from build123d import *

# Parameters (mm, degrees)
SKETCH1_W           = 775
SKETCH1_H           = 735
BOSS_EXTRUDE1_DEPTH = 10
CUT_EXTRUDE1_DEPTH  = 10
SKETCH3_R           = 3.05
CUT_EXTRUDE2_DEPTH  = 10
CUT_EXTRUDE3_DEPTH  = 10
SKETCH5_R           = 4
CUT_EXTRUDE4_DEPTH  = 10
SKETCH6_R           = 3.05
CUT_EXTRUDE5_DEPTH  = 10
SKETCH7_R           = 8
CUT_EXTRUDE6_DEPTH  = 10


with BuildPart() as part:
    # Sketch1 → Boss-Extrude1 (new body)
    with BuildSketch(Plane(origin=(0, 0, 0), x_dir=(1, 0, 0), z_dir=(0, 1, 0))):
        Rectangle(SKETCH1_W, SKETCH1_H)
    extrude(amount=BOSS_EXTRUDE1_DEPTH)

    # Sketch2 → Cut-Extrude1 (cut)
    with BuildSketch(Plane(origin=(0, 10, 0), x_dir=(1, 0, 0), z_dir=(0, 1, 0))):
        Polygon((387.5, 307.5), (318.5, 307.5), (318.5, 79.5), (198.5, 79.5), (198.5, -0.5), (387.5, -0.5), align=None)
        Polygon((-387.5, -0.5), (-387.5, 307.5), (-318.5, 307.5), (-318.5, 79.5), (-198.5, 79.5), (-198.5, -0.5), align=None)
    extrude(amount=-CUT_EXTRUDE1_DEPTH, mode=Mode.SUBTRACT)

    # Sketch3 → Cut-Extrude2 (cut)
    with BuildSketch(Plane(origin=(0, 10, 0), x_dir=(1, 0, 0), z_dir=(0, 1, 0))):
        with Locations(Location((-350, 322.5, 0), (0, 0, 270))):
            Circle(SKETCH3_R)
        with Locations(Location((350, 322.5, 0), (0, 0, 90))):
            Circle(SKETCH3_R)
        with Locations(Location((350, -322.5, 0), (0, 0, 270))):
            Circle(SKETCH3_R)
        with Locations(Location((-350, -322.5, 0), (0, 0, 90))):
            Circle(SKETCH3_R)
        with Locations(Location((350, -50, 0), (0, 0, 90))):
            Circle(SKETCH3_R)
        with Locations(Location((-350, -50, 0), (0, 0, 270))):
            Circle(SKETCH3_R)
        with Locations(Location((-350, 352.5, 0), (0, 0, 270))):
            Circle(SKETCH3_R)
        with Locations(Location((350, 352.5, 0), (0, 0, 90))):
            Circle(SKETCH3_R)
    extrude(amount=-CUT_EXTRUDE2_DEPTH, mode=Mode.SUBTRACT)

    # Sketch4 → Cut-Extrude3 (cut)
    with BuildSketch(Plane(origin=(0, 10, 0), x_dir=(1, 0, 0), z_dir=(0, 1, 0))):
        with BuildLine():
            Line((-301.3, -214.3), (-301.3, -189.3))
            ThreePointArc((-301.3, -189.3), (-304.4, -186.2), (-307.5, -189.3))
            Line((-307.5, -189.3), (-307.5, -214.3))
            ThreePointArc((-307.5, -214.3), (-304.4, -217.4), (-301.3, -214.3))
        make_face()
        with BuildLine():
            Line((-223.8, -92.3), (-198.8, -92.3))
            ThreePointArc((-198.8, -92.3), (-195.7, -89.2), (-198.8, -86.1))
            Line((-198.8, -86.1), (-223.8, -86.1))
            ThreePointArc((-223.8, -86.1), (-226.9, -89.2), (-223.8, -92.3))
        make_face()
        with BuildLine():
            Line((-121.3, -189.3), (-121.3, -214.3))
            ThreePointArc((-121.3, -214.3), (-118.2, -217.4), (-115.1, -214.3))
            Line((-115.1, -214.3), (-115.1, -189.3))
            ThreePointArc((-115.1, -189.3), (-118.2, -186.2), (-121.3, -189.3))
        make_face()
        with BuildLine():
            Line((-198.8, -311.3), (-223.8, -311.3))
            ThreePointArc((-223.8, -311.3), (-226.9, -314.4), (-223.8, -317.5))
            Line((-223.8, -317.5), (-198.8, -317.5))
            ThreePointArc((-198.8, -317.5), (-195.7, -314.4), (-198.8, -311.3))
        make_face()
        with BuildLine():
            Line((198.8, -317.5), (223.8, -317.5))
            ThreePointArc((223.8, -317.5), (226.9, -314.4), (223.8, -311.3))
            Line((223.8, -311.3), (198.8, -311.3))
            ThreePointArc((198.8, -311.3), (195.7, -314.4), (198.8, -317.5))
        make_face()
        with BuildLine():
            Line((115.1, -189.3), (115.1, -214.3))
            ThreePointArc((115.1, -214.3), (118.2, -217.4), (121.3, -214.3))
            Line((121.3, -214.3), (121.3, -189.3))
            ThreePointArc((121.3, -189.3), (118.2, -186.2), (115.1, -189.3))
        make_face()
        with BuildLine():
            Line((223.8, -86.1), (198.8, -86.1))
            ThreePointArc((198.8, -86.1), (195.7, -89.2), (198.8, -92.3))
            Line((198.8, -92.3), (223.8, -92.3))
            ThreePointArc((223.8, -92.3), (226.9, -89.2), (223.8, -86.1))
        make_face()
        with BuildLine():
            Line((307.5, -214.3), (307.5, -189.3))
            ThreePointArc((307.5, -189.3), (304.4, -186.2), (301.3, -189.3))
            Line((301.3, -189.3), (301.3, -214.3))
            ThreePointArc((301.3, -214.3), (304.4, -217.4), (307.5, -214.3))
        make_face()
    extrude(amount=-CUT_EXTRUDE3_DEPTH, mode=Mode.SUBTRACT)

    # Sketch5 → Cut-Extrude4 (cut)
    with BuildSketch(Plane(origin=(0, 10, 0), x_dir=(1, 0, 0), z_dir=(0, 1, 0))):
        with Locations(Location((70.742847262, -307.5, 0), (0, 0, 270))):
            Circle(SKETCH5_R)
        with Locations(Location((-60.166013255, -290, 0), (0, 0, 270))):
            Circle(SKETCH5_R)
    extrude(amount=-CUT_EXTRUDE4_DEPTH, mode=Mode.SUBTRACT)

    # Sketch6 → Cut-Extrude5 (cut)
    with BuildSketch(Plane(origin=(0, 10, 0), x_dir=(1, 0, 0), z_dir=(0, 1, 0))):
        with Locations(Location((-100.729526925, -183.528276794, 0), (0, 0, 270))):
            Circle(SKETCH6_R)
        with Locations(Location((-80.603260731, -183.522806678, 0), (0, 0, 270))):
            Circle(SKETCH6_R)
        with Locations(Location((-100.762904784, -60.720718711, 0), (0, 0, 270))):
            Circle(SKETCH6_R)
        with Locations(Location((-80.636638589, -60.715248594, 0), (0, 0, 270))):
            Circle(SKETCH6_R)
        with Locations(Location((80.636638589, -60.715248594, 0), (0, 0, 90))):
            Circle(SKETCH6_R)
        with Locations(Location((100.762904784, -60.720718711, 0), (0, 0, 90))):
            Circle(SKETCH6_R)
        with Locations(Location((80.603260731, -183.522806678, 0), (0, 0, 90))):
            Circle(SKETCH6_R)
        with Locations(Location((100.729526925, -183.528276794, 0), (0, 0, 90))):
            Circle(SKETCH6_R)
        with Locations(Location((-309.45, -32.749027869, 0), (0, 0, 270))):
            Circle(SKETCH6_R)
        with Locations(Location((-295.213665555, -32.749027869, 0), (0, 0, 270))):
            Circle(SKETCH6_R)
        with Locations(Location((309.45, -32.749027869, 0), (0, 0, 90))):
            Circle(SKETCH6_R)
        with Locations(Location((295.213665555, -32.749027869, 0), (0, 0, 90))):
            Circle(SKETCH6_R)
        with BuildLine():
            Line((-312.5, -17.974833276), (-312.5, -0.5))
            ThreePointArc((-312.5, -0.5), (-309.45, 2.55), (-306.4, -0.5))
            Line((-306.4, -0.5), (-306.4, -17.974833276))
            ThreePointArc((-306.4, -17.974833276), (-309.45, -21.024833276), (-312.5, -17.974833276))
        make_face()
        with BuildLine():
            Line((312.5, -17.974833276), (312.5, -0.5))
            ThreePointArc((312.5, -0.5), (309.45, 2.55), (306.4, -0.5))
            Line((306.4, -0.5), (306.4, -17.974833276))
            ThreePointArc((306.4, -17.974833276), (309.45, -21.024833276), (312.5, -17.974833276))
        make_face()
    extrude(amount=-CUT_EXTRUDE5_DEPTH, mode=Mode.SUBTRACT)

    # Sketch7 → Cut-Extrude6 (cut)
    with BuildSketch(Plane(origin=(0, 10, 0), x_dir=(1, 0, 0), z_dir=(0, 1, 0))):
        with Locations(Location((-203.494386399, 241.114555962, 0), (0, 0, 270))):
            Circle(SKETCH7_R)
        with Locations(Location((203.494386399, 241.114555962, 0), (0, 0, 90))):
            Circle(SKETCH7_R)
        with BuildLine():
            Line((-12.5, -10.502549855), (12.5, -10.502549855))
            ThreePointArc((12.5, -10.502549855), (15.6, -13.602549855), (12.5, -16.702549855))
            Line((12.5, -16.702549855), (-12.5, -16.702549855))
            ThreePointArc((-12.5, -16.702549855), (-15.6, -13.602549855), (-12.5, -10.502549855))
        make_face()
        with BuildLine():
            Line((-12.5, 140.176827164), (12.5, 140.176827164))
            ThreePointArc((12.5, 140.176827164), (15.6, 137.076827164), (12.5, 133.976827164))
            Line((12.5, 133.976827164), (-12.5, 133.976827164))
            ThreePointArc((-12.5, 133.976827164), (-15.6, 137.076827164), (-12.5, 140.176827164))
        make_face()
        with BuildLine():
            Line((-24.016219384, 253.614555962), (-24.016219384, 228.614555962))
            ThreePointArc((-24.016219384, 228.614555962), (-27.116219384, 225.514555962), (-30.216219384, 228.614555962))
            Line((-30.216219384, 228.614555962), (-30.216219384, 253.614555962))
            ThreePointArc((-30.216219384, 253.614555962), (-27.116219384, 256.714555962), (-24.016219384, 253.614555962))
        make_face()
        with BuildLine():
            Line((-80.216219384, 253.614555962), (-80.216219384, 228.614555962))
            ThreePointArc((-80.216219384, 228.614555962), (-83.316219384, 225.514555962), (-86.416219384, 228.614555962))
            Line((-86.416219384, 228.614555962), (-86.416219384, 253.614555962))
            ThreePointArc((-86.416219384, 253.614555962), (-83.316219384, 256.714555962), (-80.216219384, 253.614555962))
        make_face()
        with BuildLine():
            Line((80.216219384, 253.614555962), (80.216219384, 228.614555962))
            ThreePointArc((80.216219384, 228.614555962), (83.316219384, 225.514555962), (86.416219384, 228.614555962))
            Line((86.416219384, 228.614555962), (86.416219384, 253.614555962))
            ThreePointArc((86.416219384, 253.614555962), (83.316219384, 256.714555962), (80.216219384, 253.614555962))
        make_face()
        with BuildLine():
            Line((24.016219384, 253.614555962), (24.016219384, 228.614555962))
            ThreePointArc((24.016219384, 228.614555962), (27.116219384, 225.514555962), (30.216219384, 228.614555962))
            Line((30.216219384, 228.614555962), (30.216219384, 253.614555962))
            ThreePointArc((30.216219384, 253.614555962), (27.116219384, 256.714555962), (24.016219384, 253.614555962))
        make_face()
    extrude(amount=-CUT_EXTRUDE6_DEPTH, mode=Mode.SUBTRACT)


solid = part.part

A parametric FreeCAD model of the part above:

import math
import FreeCAD as App
import Part
import Sketcher
Q = App.Units.Quantity


def add_polygon(sketch, points):
    """Adds a closed chain of lines whose ends are joined by coincident constraints."""
    first, n = sketch.GeometryCount, len(points)
    for a, b in zip(points, points[1:] + points[:1]):
        sketch.addGeometry(Part.LineSegment(App.Vector(*a, 0), App.Vector(*b, 0)), False)
    for i in range(n):
        sketch.addConstraint(Sketcher.Constraint("Coincident", first + i, 2, first + (i + 1) % n, 1))

doc = App.newDocument("Part")
body = doc.addObject("PartDesign::Body", "Body")

# Sketch on XZ plane
sketch1 = body.newObject("Sketcher::SketchObject", "Sketch")
sketch1.AttachmentSupport = (doc.getObject("XZ_Plane"), [""])
sketch1.MapMode = "FlatFace"
add_polygon(sketch1, [(-388, -368), (-388, 368), (388, 368), (388, -368)])  # lines 0-3
sketch1.addConstraint(Sketcher.Constraint("Vertical", 0))
sketch1.addConstraint(Sketcher.Constraint("Horizontal", 1))
sketch1.addConstraint(Sketcher.Constraint("Vertical", 2))
sketch1.addConstraint(Sketcher.Constraint("Horizontal", 3))
sketch1.addConstraint(Sketcher.Constraint("Symmetric", 0, 2, 2, 2, -1, 1))
sketch1.addConstraint(Sketcher.Constraint("DistanceX", 1, 1, 1, 2, Q("775 mm")))
sketch1.addConstraint(Sketcher.Constraint("DistanceY", 0, 1, 0, 2, Q("735 mm")))
pad1 = body.newObject("PartDesign::Pad", "Pad")
pad1.Profile = sketch1
pad1.Length = 10
pad1.Reversed = True

# Sketch on XZ plane
sketch2 = body.newObject("Sketcher::SketchObject", "Sketch001")
sketch2.AttachmentSupport = (doc.getObject("XZ_Plane"), [""])
sketch2.MapMode = "FlatFace"
sketch2.AttachmentOffset = App.Placement(App.Vector(0, 0, -10), App.Rotation())
add_polygon(sketch2, [(388, -308), (318, -308), (318, -80), (198, -80), (198, 0), (388, 0)])  # lines 0-5
add_polygon(sketch2, [(-388, -308), (-388, 0), (-198, 0), (-198, -80), (-318, -80), (-318, -308)])  # lines 6-11
sketch2.addConstraint(Sketcher.Constraint("Horizontal", 0))
sketch2.addConstraint(Sketcher.Constraint("Vertical", 1))
sketch2.addConstraint(Sketcher.Constraint("Horizontal", 2))
sketch2.addConstraint(Sketcher.Constraint("Vertical", 3))
sketch2.addConstraint(Sketcher.Constraint("Horizontal", 4))
sketch2.addConstraint(Sketcher.Constraint("Vertical", 5))
sketch2.addConstraint(Sketcher.Constraint("Vertical", 6))
sketch2.addConstraint(Sketcher.Constraint("Horizontal", 7))
sketch2.addConstraint(Sketcher.Constraint("Vertical", 8))
sketch2.addConstraint(Sketcher.Constraint("Horizontal", 9))
sketch2.addConstraint(Sketcher.Constraint("Vertical", 10))
sketch2.addConstraint(Sketcher.Constraint("Horizontal", 11))
sketch2.addConstraint(Sketcher.Constraint("Symmetric", 4, 2, 6, 2, -2))
sketch2.addConstraint(Sketcher.Constraint("Symmetric", 2, 2, 8, 2, -2))
sketch2.addConstraint(Sketcher.Constraint("Symmetric", 0, 2, 10, 2, -2))
sketch2.addConstraint(Sketcher.Constraint("DistanceX", 0, 2, 0, 1, Q("69 mm")))
sketch2.addConstraint(Sketcher.Constraint("DistanceX", 2, 2, 2, 1, Q("120 mm")))
sketch2.addConstraint(Sketcher.Constraint("DistanceY", 1, 1, 1, 2, Q("228 mm")))
sketch2.addConstraint(Sketcher.Constraint("DistanceY", 3, 1, 3, 2, Q("80 mm")))
sketch2.addConstraint(Sketcher.Constraint("DistanceX", 6, 2, 3, 2, Q("586 mm")))
sketch2.addConstraint(Sketcher.Constraint("DistanceY", 0, 2, -1, 1, Q("307.5 mm")))
pocket1 = body.newObject("PartDesign::Pocket", "Pocket")
pocket1.Profile = sketch2
pocket1.Length = 10
pocket1.Reversed = True

# Sketch on XZ plane
sketch3 = body.newObject("Sketcher::SketchObject", "Sketch002")
sketch3.AttachmentSupport = (doc.getObject("XZ_Plane"), [""])
sketch3.MapMode = "FlatFace"
sketch3.AttachmentOffset = App.Placement(App.Vector(0, 0, -10), App.Rotation())
sketch3.addGeometry(Part.Circle(App.Vector(-350, -322.5, 0), App.Vector(0, 0, 1), 3), False)
sketch3.addGeometry(Part.Circle(App.Vector(350, -322.5, 0), App.Vector(0, 0, 1), 3), False)
sketch3.addGeometry(Part.Circle(App.Vector(350, 322.5, 0), App.Vector(0, 0, 1), 3), False)
sketch3.addGeometry(Part.Circle(App.Vector(-350, 322.5, 0), App.Vector(0, 0, 1), 3), False)
sketch3.addGeometry(Part.Circle(App.Vector(350, 50, 0), App.Vector(0, 0, 1), 3), False)
sketch3.addGeometry(Part.Circle(App.Vector(-350, 50, 0), App.Vector(0, 0, 1), 3), False)
sketch3.addGeometry(Part.Circle(App.Vector(-350, -352.5, 0), App.Vector(0, 0, 1), 3), False)
sketch3.addGeometry(Part.Circle(App.Vector(350, -352.5, 0), App.Vector(0, 0, 1), 3), False)
sketch3.addConstraint(Sketcher.Constraint("Equal", 0, 1))
sketch3.addConstraint(Sketcher.Constraint("Equal", 1, 2))
sketch3.addConstraint(Sketcher.Constraint("Equal", 2, 3))
sketch3.addConstraint(Sketcher.Constraint("Equal", 3, 4))
sketch3.addConstraint(Sketcher.Constraint("Equal", 4, 5))
sketch3.addConstraint(Sketcher.Constraint("Equal", 5, 6))
sketch3.addConstraint(Sketcher.Constraint("Equal", 6, 7))
sketch3.addConstraint(Sketcher.Constraint("Symmetric", 0, 3, 2, 3, -1, 1))
sketch3.addConstraint(Sketcher.Constraint("Symmetric", 1, 3, 3, 3, -1, 1))
sketch3.addConstraint(Sketcher.Constraint("Symmetric", 0, 3, 1, 3, -2))
sketch3.addConstraint(Sketcher.Constraint("Symmetric", 4, 3, 5, 3, -2))
sketch3.addConstraint(Sketcher.Constraint("Symmetric", 6, 3, 7, 3, -2))
sketch3.addConstraint(Sketcher.Constraint("Vertical", 2, 3, 4, 3))
sketch3.addConstraint(Sketcher.Constraint("Vertical", 5, 3, 6, 3))
sketch3.addConstraint(Sketcher.Constraint("Diameter", 0, Q("6.1 mm")))
sketch3.addConstraint(Sketcher.Constraint("DistanceX", 0, 3, -1, 1, Q("350 mm")))
sketch3.addConstraint(Sketcher.Constraint("DistanceY", -1, 1, 4, 3, Q("50 mm")))
sketch3.addConstraint(Sketcher.Constraint("DistanceY", 1, 3, 2, 3, Q("645 mm")))
sketch3.addConstraint(Sketcher.Constraint("DistanceY", 6, 3, 0, 3, Q("30 mm")))
pocket2 = body.newObject("PartDesign::Pocket", "Pocket001")
pocket2.Profile = sketch3
pocket2.Length = 10
pocket2.Reversed = True

# Sketch on XZ plane
sketch4 = body.newObject("Sketcher::SketchObject", "Sketch003")
sketch4.AttachmentSupport = (doc.getObject("XZ_Plane"), [""])
sketch4.MapMode = "FlatFace"
sketch4.AttachmentOffset = App.Placement(App.Vector(0, 0, -10), App.Rotation())
sketch4.addGeometry(Part.LineSegment(App.Vector(-301.3, 214.3, 0), App.Vector(-301.3, 189.3, 0)), False)
sketch4.addGeometry(Part.ArcOfCircle(Part.Circle(App.Vector(-304.4, 189.3, 0), App.Vector(0, 0, 1), 3.1), math.radians(180), math.radians(360)), False)
sketch4.addGeometry(Part.LineSegment(App.Vector(-307.5, 189.3, 0), App.Vector(-307.5, 214.3, 0)), False)
sketch4.addGeometry(Part.ArcOfCircle(Part.Circle(App.Vector(-304.4, 214.3, 0), App.Vector(0, 0, 1), 3.1), math.radians(0), math.radians(180)), False)
sketch4.addGeometry(Part.LineSegment(App.Vector(-223.8, 92.3, 0), App.Vector(-198.8, 92.3, 0)), False)
sketch4.addGeometry(Part.ArcOfCircle(Part.Circle(App.Vector(-198.8, 89.2, 0), App.Vector(0, 0, 1), 3.1), math.radians(-90), math.radians(90)), False)
sketch4.addGeometry(Part.LineSegment(App.Vector(-198.8, 86.1, 0), App.Vector(-223.8, 86.1, 0)), False)
sketch4.addGeometry(Part.ArcOfCircle(Part.Circle(App.Vector(-223.8, 89.2, 0), App.Vector(0, 0, 1), 3.1), math.radians(90), math.radians(270)), False)
sketch4.addGeometry(Part.LineSegment(App.Vector(-121.3, 189.3, 0), App.Vector(-121.3, 214.3, 0)), False)
sketch4.addGeometry(Part.ArcOfCircle(Part.Circle(App.Vector(-118.2, 214.3, 0), App.Vector(0, 0, 1), 3.1), math.radians(0), math.radians(180)), False)
sketch4.addGeometry(Part.LineSegment(App.Vector(-115.1, 214.3, 0), App.Vector(-115.1, 189.3, 0)), False)
sketch4.addGeometry(Part.ArcOfCircle(Part.Circle(App.Vector(-118.2, 189.3, 0), App.Vector(0, 0, 1), 3.1), math.radians(180), math.radians(360)), False)
sketch4.addGeometry(Part.LineSegment(App.Vector(-198.8, 311.3, 0), App.Vector(-223.8, 311.3, 0)), False)
sketch4.addGeometry(Part.ArcOfCircle(Part.Circle(App.Vector(-223.8, 314.4, 0), App.Vector(0, 0, 1), 3.1), math.radians(90), math.radians(270)), False)
sketch4.addGeometry(Part.LineSegment(App.Vector(-223.8, 317.5, 0), App.Vector(-198.8, 317.5, 0)), False)
sketch4.addGeometry(Part.ArcOfCircle(Part.Circle(App.Vector(-198.8, 314.4, 0), App.Vector(0, 0, 1), 3.1), math.radians(-90), math.radians(90)), False)
sketch4.addGeometry(Part.LineSegment(App.Vector(198.8, 317.5, 0), App.Vector(223.8, 317.5, 0)), False)
sketch4.addGeometry(Part.ArcOfCircle(Part.Circle(App.Vector(223.8, 314.4, 0), App.Vector(0, 0, 1), 3.1), math.radians(-90), math.radians(90)), False)
sketch4.addGeometry(Part.LineSegment(App.Vector(223.8, 311.3, 0), App.Vector(198.8, 311.3, 0)), False)
sketch4.addGeometry(Part.ArcOfCircle(Part.Circle(App.Vector(198.8, 314.4, 0), App.Vector(0, 0, 1), 3.1), math.radians(90), math.radians(270)), False)
sketch4.addGeometry(Part.LineSegment(App.Vector(115.1, 189.3, 0), App.Vector(115.1, 214.3, 0)), False)
sketch4.addGeometry(Part.ArcOfCircle(Part.Circle(App.Vector(118.2, 214.3, 0), App.Vector(0, 0, 1), 3.1), math.radians(0), math.radians(180)), False)
sketch4.addGeometry(Part.LineSegment(App.Vector(121.3, 214.3, 0), App.Vector(121.3, 189.3, 0)), False)
sketch4.addGeometry(Part.ArcOfCircle(Part.Circle(App.Vector(118.2, 189.3, 0), App.Vector(0, 0, 1), 3.1), math.radians(180), math.radians(360)), False)
sketch4.addGeometry(Part.LineSegment(App.Vector(223.8, 86.1, 0), App.Vector(198.8, 86.1, 0)), False)
sketch4.addGeometry(Part.ArcOfCircle(Part.Circle(App.Vector(198.8, 89.2, 0), App.Vector(0, 0, 1), 3.1), math.radians(90), math.radians(270)), False)
sketch4.addGeometry(Part.LineSegment(App.Vector(198.8, 92.3, 0), App.Vector(223.8, 92.3, 0)), False)
sketch4.addGeometry(Part.ArcOfCircle(Part.Circle(App.Vector(223.8, 89.2, 0), App.Vector(0, 0, 1), 3.1), math.radians(-90), math.radians(90)), False)
sketch4.addGeometry(Part.LineSegment(App.Vector(307.5, 214.3, 0), App.Vector(307.5, 189.3, 0)), False)
sketch4.addGeometry(Part.ArcOfCircle(Part.Circle(App.Vector(304.4, 189.3, 0), App.Vector(0, 0, 1), 3.1), math.radians(180), math.radians(360)), False)
sketch4.addGeometry(Part.LineSegment(App.Vector(301.3, 189.3, 0), App.Vector(301.3, 214.3, 0)), False)
sketch4.addGeometry(Part.ArcOfCircle(Part.Circle(App.Vector(304.4, 214.3, 0), App.Vector(0, 0, 1), 3.1), math.radians(0), math.radians(180)), False)
sketch4.addConstraint(Sketcher.Constraint("Tangent", 0, 2, 1, 2))
sketch4.addConstraint(Sketcher.Constraint("Tangent", 1, 1, 2, 1))
sketch4.addConstraint(Sketcher.Constraint("Tangent", 2, 2, 3, 2))
sketch4.addConstraint(Sketcher.Constraint("Tangent", 3, 1, 0, 1))
sketch4.addConstraint(Sketcher.Constraint("Tangent", 4, 2, 5, 2))
sketch4.addConstraint(Sketcher.Constraint("Tangent", 5, 1, 6, 1))
sketch4.addConstraint(Sketcher.Constraint("Tangent", 6, 2, 7, 2))
sketch4.addConstraint(Sketcher.Constraint("Tangent", 7, 1, 4, 1))
sketch4.addConstraint(Sketcher.Constraint("Tangent", 8, 2, 9, 2))
sketch4.addConstraint(Sketcher.Constraint("Tangent", 9, 1, 10, 1))
sketch4.addConstraint(Sketcher.Constraint("Tangent", 10, 2, 11, 2))
sketch4.addConstraint(Sketcher.Constraint("Tangent", 11, 1, 8, 1))
sketch4.addConstraint(Sketcher.Constraint("Tangent", 12, 2, 13, 2))
sketch4.addConstraint(Sketcher.Constraint("Tangent", 13, 1, 14, 1))
sketch4.addConstraint(Sketcher.Constraint("Tangent", 14, 2, 15, 2))
sketch4.addConstraint(Sketcher.Constraint("Tangent", 15, 1, 12, 1))
sketch4.addConstraint(Sketcher.Constraint("Tangent", 16, 2, 17, 2))
sketch4.addConstraint(Sketcher.Constraint("Tangent", 17, 1, 18, 1))
sketch4.addConstraint(Sketcher.Constraint("Tangent", 18, 2, 19, 2))
sketch4.addConstraint(Sketcher.Constraint("Tangent", 19, 1, 16, 1))
sketch4.addConstraint(Sketcher.Constraint("Tangent", 20, 2, 21, 2))
sketch4.addConstraint(Sketcher.Constraint("Tangent", 21, 1, 22, 1))
sketch4.addConstraint(Sketcher.Constraint("Tangent", 22, 2, 23, 2))
sketch4.addConstraint(Sketcher.Constraint("Tangent", 23, 1, 20, 1))
sketch4.addConstraint(Sketcher.Constraint("Tangent", 24, 2, 25, 2))
sketch4.addConstraint(Sketcher.Constraint("Tangent", 25, 1, 26, 1))
sketch4.addConstraint(Sketcher.Constraint("Tangent", 26, 2, 27, 2))
sketch4.addConstraint(Sketcher.Constraint("Tangent", 27, 1, 24, 1))
sketch4.addConstraint(Sketcher.Constraint("Tangent", 28, 2, 29, 2))
sketch4.addConstraint(Sketcher.Constraint("Tangent", 29, 1, 30, 1))
sketch4.addConstraint(Sketcher.Constraint("Tangent", 30, 2, 31, 2))
sketch4.addConstraint(Sketcher.Constraint("Tangent", 31, 1, 28, 1))
sketch4.addConstraint(Sketcher.Constraint("Vertical", 0))
sketch4.addConstraint(Sketcher.Constraint("Vertical", 2))
sketch4.addConstraint(Sketcher.Constraint("Horizontal", 4))
sketch4.addConstraint(Sketcher.Constraint("Horizontal", 6))
sketch4.addConstraint(Sketcher.Constraint("Vertical", 8))
sketch4.addConstraint(Sketcher.Constraint("Vertical", 10))
sketch4.addConstraint(Sketcher.Constraint("Horizontal", 12))
sketch4.addConstraint(Sketcher.Constraint("Horizontal", 14))
sketch4.addConstraint(Sketcher.Constraint("Horizontal", 16))
sketch4.addConstraint(Sketcher.Constraint("Horizontal", 18))
sketch4.addConstraint(Sketcher.Constraint("Vertical", 20))
sketch4.addConstraint(Sketcher.Constraint("Vertical", 22))
sketch4.addConstraint(Sketcher.Constraint("Horizontal", 24))
sketch4.addConstraint(Sketcher.Constraint("Horizontal", 26))
sketch4.addConstraint(Sketcher.Constraint("Vertical", 28))
sketch4.addConstraint(Sketcher.Constraint("Vertical", 30))
sketch4.addConstraint(Sketcher.Constraint("Equal", 3, 5))
sketch4.addConstraint(Sketcher.Constraint("Equal", 7, 9))
sketch4.addConstraint(Sketcher.Constraint("Equal", 11, 13))
sketch4.addConstraint(Sketcher.Constraint("Equal", 15, 17))
sketch4.addConstraint(Sketcher.Constraint("Equal", 19, 21))
sketch4.addConstraint(Sketcher.Constraint("Equal", 23, 25))
sketch4.addConstraint(Sketcher.Constraint("Equal", 27, 29))
sketch4.addConstraint(Sketcher.Constraint("Symmetric", 13, 3, 17, 3, -2))
sketch4.addConstraint(Sketcher.Constraint("Symmetric", 9, 3, 21, 3, -2))
sketch4.addConstraint(Sketcher.Constraint("Symmetric", 5, 3, 25, 3, -2))
sketch4.addConstraint(Sketcher.Constraint("Symmetric", 1, 3, 29, 3, -2))
sketch4.addConstraint(Sketcher.Constraint("Horizontal", 3, 3, 9, 3))
sketch4.addConstraint(Sketcher.Constraint("Horizontal", 1, 3, 11, 3))
sketch4.addConstraint(Sketcher.Constraint("Horizontal", 11, 3, 23, 3))
sketch4.addConstraint(Sketcher.Constraint("Horizontal", 21, 3, 31, 3))
sketch4.addConstraint(Sketcher.Constraint("Vertical", 7, 3, 13, 3))
sketch4.addConstraint(Sketcher.Constraint("Vertical", 5, 3, 15, 3))
sketch4.addConstraint(Sketcher.Constraint("Vertical", 19, 3, 25, 3))
sketch4.addConstraint(Sketcher.Constraint("Vertical", 17, 3, 27, 3))
sketch4.addConstraint(Sketcher.Constraint("Equal", 26, 0))
sketch4.addConstraint(Sketcher.Constraint("Radius", 1, Q("3.1 mm")))
sketch4.addConstraint(Sketcher.Constraint("DistanceX", 4, 1, 4, 2, Q("25 mm")))
sketch4.addConstraint(Sketcher.Constraint("DistanceX", 9, 3, 17, 3, Q("342 mm")))
sketch4.addConstraint(Sketcher.Constraint("DistanceY", 4, 2, 11, 3, Q("97 mm")))
sketch4.addConstraint(Sketcher.Constraint("DistanceY", 3, 1, 12, 2, Q("97 mm")))
sketch4.addConstraint(Sketcher.Constraint("DistanceX", 1, 3, -1, 1, Q("304.4 mm")))
sketch4.addConstraint(Sketcher.Constraint("DistanceY", -1, 1, 1, 3, Q("189.3 mm")))
sketch4.addConstraint(Sketcher.Constraint("DistanceX", 5, 3, -1, 1, Q("198.8 mm")))
pocket3 = body.newObject("PartDesign::Pocket", "Pocket002")
pocket3.Profile = sketch4
pocket3.Length = 10
pocket3.Reversed = True

# Sketch on XZ plane
sketch5 = body.newObject("Sketcher::SketchObject", "Sketch004")
sketch5.AttachmentSupport = (doc.getObject("XZ_Plane"), [""])
sketch5.MapMode = "FlatFace"
sketch5.AttachmentOffset = App.Placement(App.Vector(0, 0, -10), App.Rotation())
sketch5.addGeometry(Part.Circle(App.Vector(70.7, 307.5, 0), App.Vector(0, 0, 1), 4), False)
sketch5.addGeometry(Part.Circle(App.Vector(-60.2, 290, 0), App.Vector(0, 0, 1), 4), False)
sketch5.addConstraint(Sketcher.Constraint("Equal", 0, 1))
sketch5.addConstraint(Sketcher.Constraint("Diameter", 0, Q("8 mm")))
sketch5.addConstraint(Sketcher.Constraint("DistanceY", -1, 1, 1, 3, Q("290 mm")))
sketch5.addConstraint(Sketcher.Constraint("DistanceY", -1, 1, 0, 3, Q("307.5 mm")))
sketch5.addConstraint(Sketcher.Constraint("DistanceX", 1, 3, 0, 3, Q("130.908861 mm")))
sketch5.addConstraint(Sketcher.Constraint("DistanceX", -1, 1, 0, 3, Q("70.742847 mm")))
pocket4 = body.newObject("PartDesign::Pocket", "Pocket003")
pocket4.Profile = sketch5
pocket4.Length = 10
pocket4.Reversed = True

# Sketch on XZ plane
sketch6 = body.newObject("Sketcher::SketchObject", "Sketch005")
sketch6.AttachmentSupport = (doc.getObject("XZ_Plane"), [""])
sketch6.MapMode = "FlatFace"
sketch6.AttachmentOffset = App.Placement(App.Vector(0, 0, -10), App.Rotation())
sketch6.addGeometry(Part.Circle(App.Vector(-100.7, 183.5, 0), App.Vector(0, 0, 1), 3), False)
sketch6.addGeometry(Part.Circle(App.Vector(-80.6, 183.5, 0), App.Vector(0, 0, 1), 3), False)
sketch6.addGeometry(Part.Circle(App.Vector(-100.8, 60.7, 0), App.Vector(0, 0, 1), 3), False)
sketch6.addGeometry(Part.Circle(App.Vector(-80.6, 60.7, 0), App.Vector(0, 0, 1), 3), False)
sketch6.addGeometry(Part.Circle(App.Vector(80.6, 60.7, 0), App.Vector(0, 0, 1), 3), False)
sketch6.addGeometry(Part.Circle(App.Vector(100.8, 60.7, 0), App.Vector(0, 0, 1), 3), False)
sketch6.addGeometry(Part.Circle(App.Vector(80.6, 183.5, 0), App.Vector(0, 0, 1), 3), False)
sketch6.addGeometry(Part.Circle(App.Vector(100.7, 183.5, 0), App.Vector(0, 0, 1), 3), False)
sketch6.addGeometry(Part.Circle(App.Vector(-309.4, 32.7, 0), App.Vector(0, 0, 1), 3), False)
sketch6.addGeometry(Part.Circle(App.Vector(-295.2, 32.7, 0), App.Vector(0, 0, 1), 3), False)
sketch6.addGeometry(Part.Circle(App.Vector(309.4, 32.7, 0), App.Vector(0, 0, 1), 3), False)
sketch6.addGeometry(Part.Circle(App.Vector(295.2, 32.7, 0), App.Vector(0, 0, 1), 3), False)
sketch6.addGeometry(Part.LineSegment(App.Vector(-312.5, 0.5, 0), App.Vector(-312.5, 18, 0)), False)
sketch6.addGeometry(Part.ArcOfCircle(Part.Circle(App.Vector(-309.4, 18, 0), App.Vector(0, 0, 1), 3), math.radians(0), math.radians(180)), False)
sketch6.addGeometry(Part.LineSegment(App.Vector(-306.4, 18, 0), App.Vector(-306.4, 0.5, 0)), False)
sketch6.addGeometry(Part.ArcOfCircle(Part.Circle(App.Vector(-309.4, 0.5, 0), App.Vector(0, 0, 1), 3), math.radians(180), math.radians(360)), False)
sketch6.addGeometry(Part.LineSegment(App.Vector(312.5, 18, 0), App.Vector(312.5, 0.5, 0)), False)
sketch6.addGeometry(Part.ArcOfCircle(Part.Circle(App.Vector(309.4, 0.5, 0), App.Vector(0, 0, 1), 3), math.radians(180), math.radians(360)), False)
sketch6.addGeometry(Part.LineSegment(App.Vector(306.4, 0.5, 0), App.Vector(306.4, 18, 0)), False)
sketch6.addGeometry(Part.ArcOfCircle(Part.Circle(App.Vector(309.4, 18, 0), App.Vector(0, 0, 1), 3), math.radians(0), math.radians(180)), False)
sketch6.addConstraint(Sketcher.Constraint("Tangent", 12, 2, 13, 2))
sketch6.addConstraint(Sketcher.Constraint("Tangent", 13, 1, 14, 1))
sketch6.addConstraint(Sketcher.Constraint("Tangent", 14, 2, 15, 2))
sketch6.addConstraint(Sketcher.Constraint("Tangent", 15, 1, 12, 1))
sketch6.addConstraint(Sketcher.Constraint("Tangent", 16, 2, 17, 2))
sketch6.addConstraint(Sketcher.Constraint("Tangent", 17, 1, 18, 1))
sketch6.addConstraint(Sketcher.Constraint("Tangent", 18, 2, 19, 2))
sketch6.addConstraint(Sketcher.Constraint("Tangent", 19, 1, 16, 1))
sketch6.addConstraint(Sketcher.Constraint("Vertical", 12))
sketch6.addConstraint(Sketcher.Constraint("Vertical", 14))
sketch6.addConstraint(Sketcher.Constraint("Vertical", 16))
sketch6.addConstraint(Sketcher.Constraint("Vertical", 18))
sketch6.addConstraint(Sketcher.Constraint("Equal", 0, 1))
sketch6.addConstraint(Sketcher.Constraint("Equal", 1, 2))
sketch6.addConstraint(Sketcher.Constraint("Equal", 2, 3))
sketch6.addConstraint(Sketcher.Constraint("Equal", 3, 4))
sketch6.addConstraint(Sketcher.Constraint("Equal", 4, 5))
sketch6.addConstraint(Sketcher.Constraint("Equal", 5, 6))
sketch6.addConstraint(Sketcher.Constraint("Equal", 6, 7))
sketch6.addConstraint(Sketcher.Constraint("Equal", 7, 8))
sketch6.addConstraint(Sketcher.Constraint("Equal", 8, 9))
sketch6.addConstraint(Sketcher.Constraint("Equal", 9, 10))
sketch6.addConstraint(Sketcher.Constraint("Equal", 10, 11))
sketch6.addConstraint(Sketcher.Constraint("Equal", 11, 13))
sketch6.addConstraint(Sketcher.Constraint("Equal", 15, 17))
sketch6.addConstraint(Sketcher.Constraint("Symmetric", 3, 3, 4, 3, -2))
sketch6.addConstraint(Sketcher.Constraint("Symmetric", 2, 3, 5, 3, -2))
sketch6.addConstraint(Sketcher.Constraint("Symmetric", 1, 3, 6, 3, -2))
sketch6.addConstraint(Sketcher.Constraint("Symmetric", 0, 3, 7, 3, -2))
sketch6.addConstraint(Sketcher.Constraint("Symmetric", 8, 3, 10, 3, -2))
sketch6.addConstraint(Sketcher.Constraint("Symmetric", 9, 3, 11, 3, -2))
sketch6.addConstraint(Sketcher.Constraint("Symmetric", 15, 3, 17, 3, -2))
sketch6.addConstraint(Sketcher.Constraint("Horizontal", 8, 3, 9, 3))
sketch6.addConstraint(Sketcher.Constraint("Horizontal", 13, 3, 19, 3))
sketch6.addConstraint(Sketcher.Constraint("Vertical", 8, 3, 13, 3))
sketch6.addConstraint(Sketcher.Constraint("Diameter", 0, Q("6.1 mm")))
sketch6.addConstraint(Sketcher.Constraint("DistanceY", -1, 1, 15, 3, Q("0.5 mm")))
sketch6.addConstraint(Sketcher.Constraint("DistanceX", 12, 2, -1, 1, Q("312.5 mm")))
sketch6.addConstraint(Sketcher.Constraint("DistanceX", 1, 3, 4, 3, Q("161.239899 mm")))
sketch6.addConstraint(Sketcher.Constraint("DistanceY", 12, 1, 12, 2, Q("17.474833 mm")))
sketch6.addConstraint(Sketcher.Constraint("DistanceX", 1, 3, -1, 1, Q("80.603261 mm")))
sketch6.addConstraint(Sketcher.Constraint("DistanceY", -1, 1, 2, 3, Q("60.720719 mm")))
sketch6.addConstraint(Sketcher.Constraint("DistanceY", -1, 1, 3, 3, Q("60.715249 mm")))
sketch6.addConstraint(Sketcher.Constraint("DistanceY", 1, 3, 0, 3, Q("0.00547 mm")))
sketch6.addConstraint(Sketcher.Constraint("DistanceY", 2, 3, 0, 3, Q("122.807558 mm")))
sketch6.addConstraint(Sketcher.Constraint("DistanceX", 0, 3, 3, 3, Q("20.092888 mm")))
sketch6.addConstraint(Sketcher.Constraint("DistanceX", 2, 3, 5, 3, Q("201.52581 mm")))
sketch6.addConstraint(Sketcher.Constraint("DistanceY", 8, 3, 2, 3, Q("27.971691 mm")))
sketch6.addConstraint(Sketcher.Constraint("DistanceX", 9, 3, 2, 3, Q("194.450761 mm")))
pocket5 = body.newObject("PartDesign::Pocket", "Pocket004")
pocket5.Profile = sketch6
pocket5.Length = 10
pocket5.Reversed = True

# Sketch on XZ plane
sketch7 = body.newObject("Sketcher::SketchObject", "Sketch006")
sketch7.AttachmentSupport = (doc.getObject("XZ_Plane"), [""])
sketch7.MapMode = "FlatFace"
sketch7.AttachmentOffset = App.Placement(App.Vector(0, 0, -10), App.Rotation())
sketch7.addGeometry(Part.Circle(App.Vector(-203.5, -241.1, 0), App.Vector(0, 0, 1), 8), False)
sketch7.addGeometry(Part.Circle(App.Vector(203.5, -241.1, 0), App.Vector(0, 0, 1), 8), False)
sketch7.addGeometry(Part.LineSegment(App.Vector(12.5, 10.5, 0), App.Vector(-12.5, 10.5, 0)), False)
sketch7.addGeometry(Part.ArcOfCircle(Part.Circle(App.Vector(-12.5, 13.6, 0), App.Vector(0, 0, 1), 3.1), math.radians(90), math.radians(270)), False)
sketch7.addGeometry(Part.LineSegment(App.Vector(-12.5, 16.7, 0), App.Vector(12.5, 16.7, 0)), False)
sketch7.addGeometry(Part.ArcOfCircle(Part.Circle(App.Vector(12.5, 13.6, 0), App.Vector(0, 0, 1), 3.1), math.radians(-90), math.radians(90)), False)
sketch7.addGeometry(Part.LineSegment(App.Vector(12.5, -140.2, 0), App.Vector(-12.5, -140.2, 0)), False)
sketch7.addGeometry(Part.ArcOfCircle(Part.Circle(App.Vector(-12.5, -137.1, 0), App.Vector(0, 0, 1), 3.1), math.radians(90), math.radians(270)), False)
sketch7.addGeometry(Part.LineSegment(App.Vector(-12.5, -134, 0), App.Vector(12.5, -134, 0)), False)
sketch7.addGeometry(Part.ArcOfCircle(Part.Circle(App.Vector(12.5, -137.1, 0), App.Vector(0, 0, 1), 3.1), math.radians(-90), math.radians(90)), False)
sketch7.addGeometry(Part.LineSegment(App.Vector(-24, -228.6, 0), App.Vector(-24, -253.6, 0)), False)
sketch7.addGeometry(Part.ArcOfCircle(Part.Circle(App.Vector(-27.1, -253.6, 0), App.Vector(0, 0, 1), 3.1), math.radians(180), math.radians(360)), False)
sketch7.addGeometry(Part.LineSegment(App.Vector(-30.2, -253.6, 0), App.Vector(-30.2, -228.6, 0)), False)
sketch7.addGeometry(Part.ArcOfCircle(Part.Circle(App.Vector(-27.1, -228.6, 0), App.Vector(0, 0, 1), 3.1), math.radians(0), math.radians(180)), False)
sketch7.addGeometry(Part.LineSegment(App.Vector(-80.2, -228.6, 0), App.Vector(-80.2, -253.6, 0)), False)
sketch7.addGeometry(Part.ArcOfCircle(Part.Circle(App.Vector(-83.3, -253.6, 0), App.Vector(0, 0, 1), 3.1), math.radians(180), math.radians(360)), False)
sketch7.addGeometry(Part.LineSegment(App.Vector(-86.4, -253.6, 0), App.Vector(-86.4, -228.6, 0)), False)
sketch7.addGeometry(Part.ArcOfCircle(Part.Circle(App.Vector(-83.3, -228.6, 0), App.Vector(0, 0, 1), 3.1), math.radians(0), math.radians(180)), False)
sketch7.addGeometry(Part.LineSegment(App.Vector(80.2, -253.6, 0), App.Vector(80.2, -228.6, 0)), False)
sketch7.addGeometry(Part.ArcOfCircle(Part.Circle(App.Vector(83.3, -228.6, 0), App.Vector(0, 0, 1), 3.1), math.radians(0), math.radians(180)), False)
sketch7.addGeometry(Part.LineSegment(App.Vector(86.4, -228.6, 0), App.Vector(86.4, -253.6, 0)), False)
sketch7.addGeometry(Part.ArcOfCircle(Part.Circle(App.Vector(83.3, -253.6, 0), App.Vector(0, 0, 1), 3.1), math.radians(180), math.radians(360)), False)
sketch7.addGeometry(Part.LineSegment(App.Vector(24, -253.6, 0), App.Vector(24, -228.6, 0)), False)
sketch7.addGeometry(Part.ArcOfCircle(Part.Circle(App.Vector(27.1, -228.6, 0), App.Vector(0, 0, 1), 3.1), math.radians(0), math.radians(180)), False)
sketch7.addGeometry(Part.LineSegment(App.Vector(30.2, -228.6, 0), App.Vector(30.2, -253.6, 0)), False)
sketch7.addGeometry(Part.ArcOfCircle(Part.Circle(App.Vector(27.1, -253.6, 0), App.Vector(0, 0, 1), 3.1), math.radians(180), math.radians(360)), False)
sketch7.addConstraint(Sketcher.Constraint("Tangent", 2, 2, 3, 2))
sketch7.addConstraint(Sketcher.Constraint("Tangent", 3, 1, 4, 1))
sketch7.addConstraint(Sketcher.Constraint("Tangent", 4, 2, 5, 2))
sketch7.addConstraint(Sketcher.Constraint("Tangent", 5, 1, 2, 1))
sketch7.addConstraint(Sketcher.Constraint("Tangent", 6, 2, 7, 2))
sketch7.addConstraint(Sketcher.Constraint("Tangent", 7, 1, 8, 1))
sketch7.addConstraint(Sketcher.Constraint("Tangent", 8, 2, 9, 2))
sketch7.addConstraint(Sketcher.Constraint("Tangent", 9, 1, 6, 1))
sketch7.addConstraint(Sketcher.Constraint("Tangent", 10, 2, 11, 2))
sketch7.addConstraint(Sketcher.Constraint("Tangent", 11, 1, 12, 1))
sketch7.addConstraint(Sketcher.Constraint("Tangent", 12, 2, 13, 2))
sketch7.addConstraint(Sketcher.Constraint("Tangent", 13, 1, 10, 1))
sketch7.addConstraint(Sketcher.Constraint("Tangent", 14, 2, 15, 2))
sketch7.addConstraint(Sketcher.Constraint("Tangent", 15, 1, 16, 1))
sketch7.addConstraint(Sketcher.Constraint("Tangent", 16, 2, 17, 2))
sketch7.addConstraint(Sketcher.Constraint("Tangent", 17, 1, 14, 1))
sketch7.addConstraint(Sketcher.Constraint("Tangent", 18, 2, 19, 2))
sketch7.addConstraint(Sketcher.Constraint("Tangent", 19, 1, 20, 1))
sketch7.addConstraint(Sketcher.Constraint("Tangent", 20, 2, 21, 2))
sketch7.addConstraint(Sketcher.Constraint("Tangent", 21, 1, 18, 1))
sketch7.addConstraint(Sketcher.Constraint("Tangent", 22, 2, 23, 2))
sketch7.addConstraint(Sketcher.Constraint("Tangent", 23, 1, 24, 1))
sketch7.addConstraint(Sketcher.Constraint("Tangent", 24, 2, 25, 2))
sketch7.addConstraint(Sketcher.Constraint("Tangent", 25, 1, 22, 1))
sketch7.addConstraint(Sketcher.Constraint("Horizontal", 2))
sketch7.addConstraint(Sketcher.Constraint("Horizontal", 4))
sketch7.addConstraint(Sketcher.Constraint("Horizontal", 6))
sketch7.addConstraint(Sketcher.Constraint("Horizontal", 8))
sketch7.addConstraint(Sketcher.Constraint("Vertical", 10))
sketch7.addConstraint(Sketcher.Constraint("Vertical", 12))
sketch7.addConstraint(Sketcher.Constraint("Vertical", 14))
sketch7.addConstraint(Sketcher.Constraint("Vertical", 16))
sketch7.addConstraint(Sketcher.Constraint("Vertical", 18))
sketch7.addConstraint(Sketcher.Constraint("Vertical", 20))
sketch7.addConstraint(Sketcher.Constraint("Vertical", 22))
sketch7.addConstraint(Sketcher.Constraint("Vertical", 24))
sketch7.addConstraint(Sketcher.Constraint("Equal", 0, 1))
sketch7.addConstraint(Sketcher.Constraint("Equal", 5, 7))
sketch7.addConstraint(Sketcher.Constraint("Equal", 9, 11))
sketch7.addConstraint(Sketcher.Constraint("Equal", 13, 15))
sketch7.addConstraint(Sketcher.Constraint("Equal", 17, 19))
sketch7.addConstraint(Sketcher.Constraint("Equal", 21, 23))
sketch7.addConstraint(Sketcher.Constraint("Symmetric", 0, 3, 1, 3, -2))
sketch7.addConstraint(Sketcher.Constraint("Symmetric", 17, 3, 19, 3, -2))
sketch7.addConstraint(Sketcher.Constraint("Symmetric", 13, 3, 23, 3, -2))
sketch7.addConstraint(Sketcher.Constraint("Horizontal", 11, 3, 15, 3))
sketch7.addConstraint(Sketcher.Constraint("Horizontal", 13, 3, 17, 3))
sketch7.addConstraint(Sketcher.Constraint("Horizontal", 15, 3, 21, 3))
sketch7.addConstraint(Sketcher.Constraint("Horizontal", 21, 3, 25, 3))
sketch7.addConstraint(Sketcher.Constraint("Vertical", 3, 3, 7, 3))
sketch7.addConstraint(Sketcher.Constraint("Vertical", 5, 3, 9, 3))
sketch7.addConstraint(Sketcher.Constraint("Equal", 8, 10))
sketch7.addConstraint(Sketcher.Constraint("Diameter", 0, Q("16 mm")))
sketch7.addConstraint(Sketcher.Constraint("Radius", 3, Q("3.1 mm")))
sketch7.addConstraint(Sketcher.Constraint("DistanceX", 2, 2, 2, 1, Q("25 mm")))
sketch7.addConstraint(Sketcher.Constraint("DistanceX", 14, 2, 11, 1, Q("50 mm")))
sketch7.addConstraint(Sketcher.Constraint("DistanceX", 3, 3, -1, 1, Q("12.5 mm")))
sketch7.addConstraint(Sketcher.Constraint("DistanceY", 11, 3, 0, 3, Q("12.5 mm")))
sketch7.addConstraint(Sketcher.Constraint("DistanceY", -1, 1, 3, 3, Q("13.60255 mm")))
sketch7.addConstraint(Sketcher.Constraint("DistanceX", 11, 3, -1, 1, Q("27.116219 mm")))
sketch7.addConstraint(Sketcher.Constraint("DistanceY", 0, 3, 7, 3, Q("104.037729 mm")))
sketch7.addConstraint(Sketcher.Constraint("DistanceX", 0, 3, -1, 1, Q("203.494386 mm")))
sketch7.addConstraint(Sketcher.Constraint("DistanceY", 0, 3, -1, 1, Q("241.114556 mm")))
pocket6 = body.newObject("PartDesign::Pocket", "Pocket005")
pocket6.Profile = sketch7
pocket6.Length = 10
pocket6.Reversed = True

doc.recompute()
